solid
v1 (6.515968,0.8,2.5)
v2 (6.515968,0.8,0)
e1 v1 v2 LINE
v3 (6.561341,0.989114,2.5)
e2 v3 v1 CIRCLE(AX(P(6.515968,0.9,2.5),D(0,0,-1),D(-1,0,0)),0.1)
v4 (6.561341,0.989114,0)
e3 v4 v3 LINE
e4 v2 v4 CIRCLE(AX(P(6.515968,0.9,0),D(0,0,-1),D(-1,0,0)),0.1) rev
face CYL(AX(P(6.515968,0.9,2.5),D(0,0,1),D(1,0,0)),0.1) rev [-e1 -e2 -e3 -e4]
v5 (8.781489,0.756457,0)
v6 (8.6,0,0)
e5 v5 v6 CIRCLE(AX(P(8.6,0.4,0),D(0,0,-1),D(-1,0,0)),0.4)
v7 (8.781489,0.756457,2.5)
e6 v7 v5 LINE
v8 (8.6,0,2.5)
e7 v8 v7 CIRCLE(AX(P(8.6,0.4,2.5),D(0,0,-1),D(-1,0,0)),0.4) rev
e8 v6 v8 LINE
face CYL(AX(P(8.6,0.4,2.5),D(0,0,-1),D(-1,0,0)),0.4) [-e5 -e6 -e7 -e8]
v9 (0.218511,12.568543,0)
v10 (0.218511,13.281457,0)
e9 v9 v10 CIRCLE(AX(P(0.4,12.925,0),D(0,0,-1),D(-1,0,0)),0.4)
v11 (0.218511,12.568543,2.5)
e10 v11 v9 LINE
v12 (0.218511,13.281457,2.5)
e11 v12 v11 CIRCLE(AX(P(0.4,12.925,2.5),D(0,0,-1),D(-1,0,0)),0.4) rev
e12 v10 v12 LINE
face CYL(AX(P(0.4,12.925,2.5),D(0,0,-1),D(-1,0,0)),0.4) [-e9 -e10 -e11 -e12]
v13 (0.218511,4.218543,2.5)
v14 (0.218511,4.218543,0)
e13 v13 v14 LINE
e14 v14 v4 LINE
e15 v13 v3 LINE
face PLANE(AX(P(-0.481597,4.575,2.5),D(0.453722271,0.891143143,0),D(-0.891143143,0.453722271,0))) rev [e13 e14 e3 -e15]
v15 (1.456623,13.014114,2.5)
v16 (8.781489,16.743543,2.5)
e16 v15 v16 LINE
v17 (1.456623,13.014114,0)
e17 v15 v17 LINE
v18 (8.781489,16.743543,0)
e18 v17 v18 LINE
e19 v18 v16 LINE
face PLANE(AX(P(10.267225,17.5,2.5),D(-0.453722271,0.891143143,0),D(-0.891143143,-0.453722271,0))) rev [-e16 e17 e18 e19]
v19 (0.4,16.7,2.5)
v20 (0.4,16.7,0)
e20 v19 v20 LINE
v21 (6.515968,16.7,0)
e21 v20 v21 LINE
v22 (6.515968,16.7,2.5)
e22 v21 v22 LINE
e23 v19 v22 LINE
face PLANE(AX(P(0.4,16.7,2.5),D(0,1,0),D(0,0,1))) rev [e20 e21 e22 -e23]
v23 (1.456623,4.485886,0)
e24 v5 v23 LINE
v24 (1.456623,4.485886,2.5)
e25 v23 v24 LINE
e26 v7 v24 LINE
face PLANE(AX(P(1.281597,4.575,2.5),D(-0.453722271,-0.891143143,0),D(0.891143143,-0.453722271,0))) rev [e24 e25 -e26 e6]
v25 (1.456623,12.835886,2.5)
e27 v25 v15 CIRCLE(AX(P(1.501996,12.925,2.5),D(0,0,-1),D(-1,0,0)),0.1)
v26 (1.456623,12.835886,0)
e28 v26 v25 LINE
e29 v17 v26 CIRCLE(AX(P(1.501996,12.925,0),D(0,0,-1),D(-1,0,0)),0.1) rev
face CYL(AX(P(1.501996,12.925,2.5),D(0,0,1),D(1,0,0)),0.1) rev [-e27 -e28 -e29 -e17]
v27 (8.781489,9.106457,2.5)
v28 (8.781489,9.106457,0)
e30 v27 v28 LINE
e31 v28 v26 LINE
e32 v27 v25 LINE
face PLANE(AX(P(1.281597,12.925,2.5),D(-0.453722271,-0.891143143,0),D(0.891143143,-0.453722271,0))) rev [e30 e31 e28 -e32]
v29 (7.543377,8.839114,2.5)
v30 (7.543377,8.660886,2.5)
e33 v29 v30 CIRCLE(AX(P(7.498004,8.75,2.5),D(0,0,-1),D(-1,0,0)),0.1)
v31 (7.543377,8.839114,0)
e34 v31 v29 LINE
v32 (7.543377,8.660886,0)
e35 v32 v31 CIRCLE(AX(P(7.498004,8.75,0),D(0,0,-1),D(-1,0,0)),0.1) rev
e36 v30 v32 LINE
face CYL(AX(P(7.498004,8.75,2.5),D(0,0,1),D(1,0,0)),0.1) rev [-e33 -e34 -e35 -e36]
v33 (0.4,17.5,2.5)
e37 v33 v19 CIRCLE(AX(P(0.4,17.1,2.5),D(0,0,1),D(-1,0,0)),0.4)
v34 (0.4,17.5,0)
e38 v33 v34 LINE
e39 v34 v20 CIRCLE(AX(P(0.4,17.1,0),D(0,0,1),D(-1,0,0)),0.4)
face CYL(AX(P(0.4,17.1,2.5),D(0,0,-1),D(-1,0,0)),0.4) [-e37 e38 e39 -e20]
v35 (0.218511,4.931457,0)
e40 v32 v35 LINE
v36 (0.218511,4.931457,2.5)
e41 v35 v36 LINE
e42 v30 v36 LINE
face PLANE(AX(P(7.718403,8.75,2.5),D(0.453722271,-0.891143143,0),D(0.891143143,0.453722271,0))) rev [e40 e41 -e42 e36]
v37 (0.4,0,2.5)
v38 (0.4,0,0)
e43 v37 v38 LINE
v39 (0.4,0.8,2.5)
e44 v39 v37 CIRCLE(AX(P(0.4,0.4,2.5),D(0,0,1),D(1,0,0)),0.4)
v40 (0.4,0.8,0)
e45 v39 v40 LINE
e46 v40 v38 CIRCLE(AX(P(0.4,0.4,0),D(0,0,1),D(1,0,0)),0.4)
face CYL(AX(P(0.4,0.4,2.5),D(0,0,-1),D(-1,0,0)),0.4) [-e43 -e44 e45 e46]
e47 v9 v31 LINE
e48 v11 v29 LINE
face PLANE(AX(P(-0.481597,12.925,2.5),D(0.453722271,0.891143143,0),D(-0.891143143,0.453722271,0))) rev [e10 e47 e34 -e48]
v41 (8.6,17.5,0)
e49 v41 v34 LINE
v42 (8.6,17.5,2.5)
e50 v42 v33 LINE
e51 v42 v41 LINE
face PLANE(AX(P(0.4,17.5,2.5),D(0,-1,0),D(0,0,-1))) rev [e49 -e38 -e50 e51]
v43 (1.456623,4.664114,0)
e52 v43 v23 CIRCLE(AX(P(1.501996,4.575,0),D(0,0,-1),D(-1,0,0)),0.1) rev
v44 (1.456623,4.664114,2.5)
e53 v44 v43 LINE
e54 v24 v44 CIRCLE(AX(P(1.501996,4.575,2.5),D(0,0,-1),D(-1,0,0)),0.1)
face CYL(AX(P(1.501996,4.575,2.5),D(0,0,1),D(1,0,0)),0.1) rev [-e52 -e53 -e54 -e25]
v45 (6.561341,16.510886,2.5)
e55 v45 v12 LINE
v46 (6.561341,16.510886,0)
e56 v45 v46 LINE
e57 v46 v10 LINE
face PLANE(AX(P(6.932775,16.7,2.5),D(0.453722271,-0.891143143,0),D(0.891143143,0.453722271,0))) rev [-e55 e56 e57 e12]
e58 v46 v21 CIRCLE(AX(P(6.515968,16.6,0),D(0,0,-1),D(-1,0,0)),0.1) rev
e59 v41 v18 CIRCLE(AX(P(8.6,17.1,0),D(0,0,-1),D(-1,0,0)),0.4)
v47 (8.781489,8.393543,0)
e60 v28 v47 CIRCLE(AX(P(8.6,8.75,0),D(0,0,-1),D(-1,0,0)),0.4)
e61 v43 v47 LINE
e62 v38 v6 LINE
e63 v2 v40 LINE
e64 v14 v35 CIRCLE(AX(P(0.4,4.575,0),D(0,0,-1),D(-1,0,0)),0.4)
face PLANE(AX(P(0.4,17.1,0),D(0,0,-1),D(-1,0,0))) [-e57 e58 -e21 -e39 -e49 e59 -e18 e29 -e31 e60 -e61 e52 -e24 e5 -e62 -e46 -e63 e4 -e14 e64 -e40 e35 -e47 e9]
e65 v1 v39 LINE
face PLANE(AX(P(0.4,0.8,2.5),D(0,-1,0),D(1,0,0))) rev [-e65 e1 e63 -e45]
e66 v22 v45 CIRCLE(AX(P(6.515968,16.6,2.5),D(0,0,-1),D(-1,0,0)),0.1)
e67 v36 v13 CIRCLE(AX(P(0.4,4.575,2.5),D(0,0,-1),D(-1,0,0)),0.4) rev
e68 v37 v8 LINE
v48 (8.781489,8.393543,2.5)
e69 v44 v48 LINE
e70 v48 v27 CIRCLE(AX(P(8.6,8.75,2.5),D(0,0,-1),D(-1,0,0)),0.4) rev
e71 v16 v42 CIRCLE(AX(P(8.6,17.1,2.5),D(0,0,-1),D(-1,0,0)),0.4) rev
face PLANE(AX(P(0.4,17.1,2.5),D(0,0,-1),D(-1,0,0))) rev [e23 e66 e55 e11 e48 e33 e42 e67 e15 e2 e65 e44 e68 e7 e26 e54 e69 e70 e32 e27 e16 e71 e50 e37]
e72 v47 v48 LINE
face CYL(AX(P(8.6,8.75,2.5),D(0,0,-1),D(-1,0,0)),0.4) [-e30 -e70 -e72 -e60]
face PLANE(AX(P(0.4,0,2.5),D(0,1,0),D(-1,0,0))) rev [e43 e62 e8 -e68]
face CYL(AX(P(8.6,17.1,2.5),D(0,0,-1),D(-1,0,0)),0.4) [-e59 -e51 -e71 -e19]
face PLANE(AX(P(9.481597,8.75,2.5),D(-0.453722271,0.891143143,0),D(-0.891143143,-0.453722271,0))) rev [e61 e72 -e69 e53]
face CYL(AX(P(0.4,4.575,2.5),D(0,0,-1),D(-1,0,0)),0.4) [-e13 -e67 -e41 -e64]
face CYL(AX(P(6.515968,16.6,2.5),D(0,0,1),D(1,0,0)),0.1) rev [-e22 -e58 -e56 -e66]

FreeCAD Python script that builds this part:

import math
import FreeCAD as App
import Part
import Sketcher

V = App.Vector


def edges_at(feature, points):
    """Names of the edges that pass closest to the given points."""
    edges = feature.Shape.Edges
    near = lambda p: min(range(len(edges)), key=lambda i: edges[i].distToShape(Part.Vertex(*p))[0])
    return sorted({f"Edge{near(p) + 1}" for p in points})

doc = App.newDocument("Part")
body = doc.addObject("PartDesign::Body", "Body")

sketch1 = doc.addObject("Sketcher::SketchObject", "Sketch")
body.addObject(sketch1)
sketch1.AttachmentSupport = (doc.XY_Plane, [""])
sketch1.MapMode = "FlatFace"
sketch1.addGeometry(Part.LineSegment(V(0.4, 16.7, 0), V(6.93, 16.7, 0)), False)
sketch1.addGeometry(Part.LineSegment(V(6.93, 16.7, 0), V(-0.48, 12.93, 0)), False)
sketch1.addGeometry(Part.LineSegment(V(-0.48, 12.93, 0), V(7.72, 8.75, 0)), False)
sketch1.addGeometry(Part.LineSegment(V(7.72, 8.75, 0), V(-0.48, 4.58, 0)), False)
sketch1.addGeometry(Part.LineSegment(V(-0.48, 4.58, 0), V(6.93, 0.8, 0)), False)
sketch1.addGeometry(Part.LineSegment(V(6.93, 0.8, 0), V(0.4, 0.8, 0)), False)
sketch1.addGeometry(Part.ArcOfCircle(Part.Circle(V(0.4, 0.4, 0), V(0, 0, 1), 0.4), math.radians(90), math.radians(270)), False)
sketch1.addGeometry(Part.LineSegment(V(0.4, 0, 0), V(10.27, 0, 0)), False)
sketch1.addGeometry(Part.LineSegment(V(10.27, 0, 0), V(1.28, 4.58, 0)), False)
sketch1.addGeometry(Part.LineSegment(V(1.28, 4.58, 0), V(9.48, 8.75, 0)), False)
sketch1.addGeometry(Part.LineSegment(V(9.48, 8.75, 0), V(1.28, 12.93, 0)), False)
sketch1.addGeometry(Part.LineSegment(V(1.28, 12.93, 0), V(10.27, 17.5, 0)), False)
sketch1.addGeometry(Part.LineSegment(V(10.27, 17.5, 0), V(0.4, 17.5, 0)), False)
sketch1.addGeometry(Part.ArcOfCircle(Part.Circle(V(0.4, 17.1, 0), V(0, 0, 1), 0.4), math.radians(90), math.radians(270)), False)
sketch1.addConstraint(Sketcher.Constraint("Coincident", 0, 2, 1, 1))
sketch1.addConstraint(Sketcher.Constraint("Coincident", 1, 2, 2, 1))
sketch1.addConstraint(Sketcher.Constraint("Coincident", 2, 2, 3, 1))
sketch1.addConstraint(Sketcher.Constraint("Coincident", 3, 2, 4, 1))
sketch1.addConstraint(Sketcher.Constraint("Coincident", 4, 2, 5, 1))
sketch1.addConstraint(Sketcher.Constraint("Tangent", 5, 2, 6, 1))
sketch1.addConstraint(Sketcher.Constraint("Tangent", 6, 2, 7, 1))
sketch1.addConstraint(Sketcher.Constraint("Coincident", 7, 2, 8, 1))
sketch1.addConstraint(Sketcher.Constraint("Coincident", 8, 2, 9, 1))
sketch1.addConstraint(Sketcher.Constraint("Coincident", 9, 2, 10, 1))
sketch1.addConstraint(Sketcher.Constraint("Coincident", 10, 2, 11, 1))
sketch1.addConstraint(Sketcher.Constraint("Coincident", 11, 2, 12, 1))
sketch1.addConstraint(Sketcher.Constraint("Tangent", 12, 2, 13, 1))
sketch1.addConstraint(Sketcher.Constraint("Tangent", 13, 2, 0, 1))
sketch1.addConstraint(Sketcher.Constraint("Horizontal", 0))
sketch1.addConstraint(Sketcher.Constraint("Horizontal", 5))
sketch1.addConstraint(Sketcher.Constraint("Horizontal", 7))
sketch1.addConstraint(Sketcher.Constraint("Horizontal", 12))
sketch1.addConstraint(Sketcher.Constraint("Equal", 6, 13))
sketch1.addConstraint(Sketcher.Constraint("PointOnObject", 6, 2, -1))
sketch1.addConstraint(Sketcher.Constraint("Parallel", 1, 3))
sketch1.addConstraint(Sketcher.Constraint("Parallel", 2, 4))
sketch1.addConstraint(Sketcher.Constraint("Parallel", 4, 8))
sketch1.addConstraint(Sketcher.Constraint("Parallel", 3, 9))
sketch1.addConstraint(Sketcher.Constraint("Parallel", 8, 10))
sketch1.addConstraint(Sketcher.Constraint("Parallel", 9, 11))
sketch1.addConstraint(Sketcher.Constraint("Horizontal", 3, 2, 8, 2))
sketch1.addConstraint(Sketcher.Constraint("Horizontal", 2, 2, 9, 2))
sketch1.addConstraint(Sketcher.Constraint("Horizontal", 1, 2, 10, 2))
sketch1.addConstraint(Sketcher.Constraint("Vertical", 6, 3, 13, 3))
sketch1.addConstraint(Sketcher.Constraint("Vertical", 1, 2, 3, 2))
sketch1.addConstraint(Sketcher.Constraint("Vertical", 0, 2, 4, 2))
sketch1.addConstraint(Sketcher.Constraint("Vertical", 7, 2, 11, 2))
sketch1.addConstraint(Sketcher.Constraint("Radius", 6, 0.4))
sketch1.addConstraint(Sketcher.Constraint("DistanceX", -1, 1, 6, 3, 0.4))
sketch1.addConstraint(Sketcher.Constraint("DistanceY", -1, 1, 13, 3, 17.1))
sketch1.addConstraint(Sketcher.Constraint("DistanceX", 1, 2, 2, 2, 8.2))
sketch1.addConstraint(Sketcher.Constraint("DistanceY", 3, 2, 1, 2, 8.35))
sketch1.addConstraint(Sketcher.Constraint("DistanceX", 0, 1, 0, 2, 6.532775))
sketch1.addConstraint(Sketcher.Constraint("DistanceX", 7, 1, 7, 2, 9.867225))
pad1 = doc.addObject("PartDesign::Pad", "Pad")
body.addObject(pad1)
pad1.Profile = sketch1
pad1.Length = 2.5
doc.recompute()

fillet = doc.addObject("PartDesign::Fillet", "Fillet")
body.addObject(fillet)
fillet.Base = (pad1, edges_at(pad1, [
    (10.267, 17.5, 1.25),
    (9.482, 8.75, 1.25),
    (10.267, 0, 1.25),
    (-0.482, 4.575, 1.25),
    (-0.482, 12.925, 1.25),
]))
fillet.Radius = 0.4
doc.recompute()

fillet2 = doc.addObject("PartDesign::Fillet", "Fillet001")
body.addObject(fillet2)
fillet2.Base = (fillet, edges_at(fillet, [
    (1.282, 12.925, 1.25),
    (1.282, 4.575, 1.25),
    (6.933, 0.8, 1.25),
    (7.718, 8.75, 1.25),
    (6.933, 16.7, 1.25),
]))
fillet2.Radius = 0.1

doc.recompute()
